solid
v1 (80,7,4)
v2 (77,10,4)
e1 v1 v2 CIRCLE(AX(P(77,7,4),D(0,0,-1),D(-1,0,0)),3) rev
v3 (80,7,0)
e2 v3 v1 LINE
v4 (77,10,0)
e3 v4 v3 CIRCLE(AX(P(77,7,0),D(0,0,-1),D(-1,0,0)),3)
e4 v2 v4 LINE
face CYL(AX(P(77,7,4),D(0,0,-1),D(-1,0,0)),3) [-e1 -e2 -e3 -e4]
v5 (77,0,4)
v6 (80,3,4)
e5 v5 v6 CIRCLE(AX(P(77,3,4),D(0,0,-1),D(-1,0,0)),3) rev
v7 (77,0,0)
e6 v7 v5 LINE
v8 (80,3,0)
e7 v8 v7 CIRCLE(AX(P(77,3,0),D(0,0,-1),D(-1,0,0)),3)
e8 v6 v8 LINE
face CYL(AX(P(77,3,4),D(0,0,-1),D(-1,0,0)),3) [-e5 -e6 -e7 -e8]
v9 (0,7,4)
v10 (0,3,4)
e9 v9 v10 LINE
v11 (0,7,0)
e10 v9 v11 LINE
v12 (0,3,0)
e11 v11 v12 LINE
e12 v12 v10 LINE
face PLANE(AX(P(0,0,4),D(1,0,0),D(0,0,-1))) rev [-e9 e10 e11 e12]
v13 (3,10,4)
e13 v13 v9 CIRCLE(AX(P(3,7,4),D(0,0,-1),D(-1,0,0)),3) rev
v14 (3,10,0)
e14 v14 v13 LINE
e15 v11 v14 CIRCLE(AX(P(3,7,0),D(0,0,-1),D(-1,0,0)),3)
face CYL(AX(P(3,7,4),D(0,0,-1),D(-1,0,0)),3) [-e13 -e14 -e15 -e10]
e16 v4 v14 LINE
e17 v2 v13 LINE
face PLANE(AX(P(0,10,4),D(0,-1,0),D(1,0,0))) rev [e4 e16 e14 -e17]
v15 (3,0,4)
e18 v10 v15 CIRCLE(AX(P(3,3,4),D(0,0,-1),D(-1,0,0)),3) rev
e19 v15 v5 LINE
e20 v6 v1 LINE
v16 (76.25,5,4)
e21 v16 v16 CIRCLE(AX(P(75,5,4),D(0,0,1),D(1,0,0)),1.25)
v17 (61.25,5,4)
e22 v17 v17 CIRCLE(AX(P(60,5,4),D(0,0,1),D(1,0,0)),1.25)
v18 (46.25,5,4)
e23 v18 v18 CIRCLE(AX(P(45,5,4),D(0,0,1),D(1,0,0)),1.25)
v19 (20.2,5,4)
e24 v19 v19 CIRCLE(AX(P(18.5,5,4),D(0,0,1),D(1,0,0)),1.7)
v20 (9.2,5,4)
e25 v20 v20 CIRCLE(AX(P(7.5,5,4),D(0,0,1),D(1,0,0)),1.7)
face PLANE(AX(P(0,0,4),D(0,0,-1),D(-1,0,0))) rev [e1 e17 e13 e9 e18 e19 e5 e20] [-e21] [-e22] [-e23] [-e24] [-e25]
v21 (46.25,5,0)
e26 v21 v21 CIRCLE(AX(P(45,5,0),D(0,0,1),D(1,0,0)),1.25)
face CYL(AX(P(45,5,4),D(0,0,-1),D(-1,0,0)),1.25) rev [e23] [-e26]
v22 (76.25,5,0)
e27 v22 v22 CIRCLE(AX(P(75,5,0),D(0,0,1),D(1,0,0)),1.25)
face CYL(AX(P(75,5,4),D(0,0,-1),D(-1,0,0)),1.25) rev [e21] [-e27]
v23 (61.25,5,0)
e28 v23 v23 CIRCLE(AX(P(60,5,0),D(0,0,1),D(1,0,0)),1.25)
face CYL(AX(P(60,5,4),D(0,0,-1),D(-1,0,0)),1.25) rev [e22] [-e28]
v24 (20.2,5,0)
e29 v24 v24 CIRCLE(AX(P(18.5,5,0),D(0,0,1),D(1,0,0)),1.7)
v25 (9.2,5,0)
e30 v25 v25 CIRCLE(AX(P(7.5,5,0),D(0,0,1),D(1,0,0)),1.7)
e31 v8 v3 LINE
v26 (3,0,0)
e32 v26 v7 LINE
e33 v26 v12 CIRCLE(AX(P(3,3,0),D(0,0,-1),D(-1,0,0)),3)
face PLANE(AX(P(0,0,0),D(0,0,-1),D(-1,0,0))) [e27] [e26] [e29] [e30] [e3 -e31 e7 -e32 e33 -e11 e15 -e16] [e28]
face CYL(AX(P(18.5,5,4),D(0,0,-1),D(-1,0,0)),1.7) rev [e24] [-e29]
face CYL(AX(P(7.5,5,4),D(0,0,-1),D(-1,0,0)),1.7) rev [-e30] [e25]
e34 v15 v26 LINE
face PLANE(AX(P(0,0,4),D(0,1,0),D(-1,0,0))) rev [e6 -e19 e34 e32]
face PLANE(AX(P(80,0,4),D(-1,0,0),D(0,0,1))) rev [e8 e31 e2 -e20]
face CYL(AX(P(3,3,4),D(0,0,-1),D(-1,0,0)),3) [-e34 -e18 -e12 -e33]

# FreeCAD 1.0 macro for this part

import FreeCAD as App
import Part
import Sketcher

V = App.Vector
Q = App.Units.Quantity


def edges_at(feature, points):
    """Names of the edges that pass closest to the given points."""
    edges = feature.Shape.Edges
    near = lambda p: min(range(len(edges)), key=lambda i: edges[i].distToShape(Part.Vertex(*p))[0])
    return sorted({f"Edge{near(p) + 1}" for p in points})


def add_polygon(sketch, points):
    """Adds a closed chain of lines whose ends are joined by coincident constraints."""
    first, n = sketch.GeometryCount, len(points)
    for a, b in zip(points, points[1:] + points[:1]):
        sketch.addGeometry(Part.LineSegment(App.Vector(*a, 0), App.Vector(*b, 0)), False)
    for i in range(n):
        sketch.addConstraint(Sketcher.Constraint("Coincident", first + i, 2, first + (i + 1) % n, 1))

doc = App.newDocument("Part")
body = doc.addObject("PartDesign::Body", "Body")

sketch1 = body.newObject("Sketcher::SketchObject", "Sketch")
sketch1.AttachmentSupport = (doc.getObject("XY_Plane"), [""])
sketch1.MapMode = "FlatFace"
add_polygon(sketch1, [(0, 10), (0, 0), (80, 0), (80, 10)])
sketch1.addGeometry(Part.Circle(V(7.5, 5, 0), V(0, 0, 1), 1.7), False)
sketch1.addGeometry(Part.Circle(V(18.5, 5, 0), V(0, 0, 1), 1.7), False)
sketch1.addGeometry(Part.Circle(V(45, 5, 0), V(0, 0, 1), 1.2), False)
sketch1.addGeometry(Part.Circle(V(60, 5, 0), V(0, 0, 1), 1.2), False)
sketch1.addGeometry(Part.Circle(V(75, 5, 0), V(0, 0, 1), 1.2), False)
sketch1.addConstraint([
    Sketcher.Constraint("Vertical", 0),
    Sketcher.Constraint("Horizontal", 1),
    Sketcher.Constraint("Vertical", 2),
    Sketcher.Constraint("Horizontal", 3),
    Sketcher.Constraint("Coincident", 0, 2, -1, 1),
    Sketcher.Constraint("Equal", 4, 5),
    Sketcher.Constraint("Equal", 6, 7),
    Sketcher.Constraint("Equal", 7, 8),
    Sketcher.Constraint("Horizontal", 4, 3, 5, 3),
    Sketcher.Constraint("Horizontal", 5, 3, 6, 3),
    Sketcher.Constraint("Horizontal", 6, 3, 7, 3),
    Sketcher.Constraint("Horizontal", 7, 3, 8, 3),
    Sketcher.Constraint("Diameter", 4, Q("3.4 mm")),
    Sketcher.Constraint("Diameter", 6, Q("2.5 mm")),
    Sketcher.Constraint("DistanceX", 1, 1, 1, 2, Q("80 mm")),
    Sketcher.Constraint("DistanceY", 0, 2, 0, 1, Q("10 mm")),
    Sketcher.Constraint("DistanceY", -1, 1, 4, 3, Q("5 mm")),
    Sketcher.Constraint("DistanceX", -1, 1, 6, 3, Q("45 mm")),
    Sketcher.Constraint("DistanceX", -1, 1, 7, 3, Q("60 mm")),
    Sketcher.Constraint("DistanceX", -1, 1, 8, 3, Q("75 mm")),
    Sketcher.Constraint("DistanceX", 4, 3, 5, 3, Q("11 mm")),
    Sketcher.Constraint("DistanceX", -1, 1, 4, 3, Q("7.5 mm")),
])
pad1 = body.newObject("PartDesign::Pad", "Pad")
pad1.Profile = sketch1
pad1.Length = 4
doc.recompute()

fillet = body.newObject("PartDesign::Fillet", "Fillet")
fillet.Base = (pad1, edges_at(pad1, [
    (0, 10, 2),
    (80, 10, 2),
    (80, 0, 2),
    (0, 0, 2),
]))
fillet.Radius = 3

doc.recompute()
